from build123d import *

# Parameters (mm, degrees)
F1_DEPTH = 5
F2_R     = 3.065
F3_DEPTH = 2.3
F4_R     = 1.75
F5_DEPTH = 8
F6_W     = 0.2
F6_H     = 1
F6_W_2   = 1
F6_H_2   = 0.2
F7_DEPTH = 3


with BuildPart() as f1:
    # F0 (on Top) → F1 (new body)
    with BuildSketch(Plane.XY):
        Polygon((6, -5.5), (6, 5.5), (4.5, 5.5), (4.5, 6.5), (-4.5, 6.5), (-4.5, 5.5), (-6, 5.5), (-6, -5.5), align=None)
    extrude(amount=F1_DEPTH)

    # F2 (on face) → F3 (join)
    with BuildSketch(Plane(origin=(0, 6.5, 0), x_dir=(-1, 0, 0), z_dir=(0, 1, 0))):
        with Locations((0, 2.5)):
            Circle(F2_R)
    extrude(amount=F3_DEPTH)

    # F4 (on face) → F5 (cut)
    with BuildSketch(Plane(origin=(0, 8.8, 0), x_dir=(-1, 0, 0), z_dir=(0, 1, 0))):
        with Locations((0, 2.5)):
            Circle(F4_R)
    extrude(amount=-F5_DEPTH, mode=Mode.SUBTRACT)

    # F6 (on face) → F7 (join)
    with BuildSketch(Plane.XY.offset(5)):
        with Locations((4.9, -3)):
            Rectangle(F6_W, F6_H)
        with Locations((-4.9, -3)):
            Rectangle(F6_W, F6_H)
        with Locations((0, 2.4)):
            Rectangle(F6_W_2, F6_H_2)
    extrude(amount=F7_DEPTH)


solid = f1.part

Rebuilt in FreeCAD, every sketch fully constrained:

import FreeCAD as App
import Part
import Sketcher
Q = App.Units.Quantity


def add_polygon(sketch, points):
    """Adds a closed chain of lines whose ends are joined by coincident constraints."""
    first, n = sketch.GeometryCount, len(points)
    for a, b in zip(points, points[1:] + points[:1]):
        sketch.addGeometry(Part.LineSegment(App.Vector(*a, 0), App.Vector(*b, 0)), False)
    for i in range(n):
        sketch.addConstraint(Sketcher.Constraint("Coincident", first + i, 2, first + (i + 1) % n, 1))

doc = App.newDocument("Part")
params = doc.addObject("Spreadsheet::Sheet", "Params")
for row, (alias, value) in enumerate([
    ("sketch1_width", "9 mm"),
    ("sketch1_width2", "12 mm"),
    ("sketch1_height", "11 mm"),
    ("sketch1_height2", "1 mm"),
    ("pad1_length", "5 mm"),
    ("sketch2_diameter", "6.13 mm"),
    ("pad2_length", "2.3 mm"),
    ("sketch3_diameter", "3.5 mm"),
    ("pocket1_length", "8 mm"),
    ("sketch4_width", "1 mm"),
    ("sketch4_width2", "0.2 mm"),
    ("pad3_length", "3 mm"),
], start=1):
    params.set(f"A{row}", alias)
    params.set(f"B{row}", "=" + value)
    params.setAlias(f"B{row}", alias)

body = doc.addObject("PartDesign::Body", "Body")

# Sketch on XY plane
sketch1 = body.newObject("Sketcher::SketchObject", "Sketch")
sketch1.AttachmentSupport = (doc.getObject("XY_Plane"), [""])
sketch1.MapMode = "FlatFace"
add_polygon(sketch1, [(6, -5.5), (6, 5.5), (4.5, 5.5), (4.5, 6.5), (-4.5, 6.5), (-4.5, 5.5), (-6, 5.5), (-6, -5.5)])  # lines 0-7
sketch1.addConstraint(Sketcher.Constraint("Vertical", 0))
sketch1.addConstraint(Sketcher.Constraint("Horizontal", 1))
sketch1.addConstraint(Sketcher.Constraint("Vertical", 2))
sketch1.addConstraint(Sketcher.Constraint("Horizontal", 3))
sketch1.addConstraint(Sketcher.Constraint("Vertical", 4))
sketch1.addConstraint(Sketcher.Constraint("Horizontal", 5))
sketch1.addConstraint(Sketcher.Constraint("Vertical", 6))
sketch1.addConstraint(Sketcher.Constraint("Horizontal", 7))
sketch1.addConstraint(Sketcher.Constraint("Symmetric", 0, 2, 6, 2, -1, 1))
sketch1.addConstraint(Sketcher.Constraint("Symmetric", 1, 2, 4, 2, -2))
sketch1.addConstraint(Sketcher.Constraint("DistanceX", 3, 2, 3, 1, Q("9 mm")))
sketch1.addConstraint(Sketcher.Constraint("DistanceX", 7, 1, 7, 2, Q("12 mm")))
sketch1.addConstraint(Sketcher.Constraint("DistanceY", 0, 1, 0, 2, Q("11 mm")))
sketch1.addConstraint(Sketcher.Constraint("DistanceY", 2, 1, 2, 2, Q("1 mm")))
sketch1.setExpression("Constraints[18]", "Params.sketch1_width")
sketch1.setExpression("Constraints[19]", "Params.sketch1_width2")
sketch1.setExpression("Constraints[20]", "Params.sketch1_height")
sketch1.setExpression("Constraints[21]", "Params.sketch1_height2")
pad1 = body.newObject("PartDesign::Pad", "Pad")
pad1.Profile = sketch1
pad1.setExpression("Length", "Params.pad1_length")

# Sketch on XZ plane
sketch2 = body.newObject("Sketcher::SketchObject", "Sketch001")
sketch2.AttachmentSupport = (doc.getObject("XZ_Plane"), [""])
sketch2.MapMode = "FlatFace"
sketch2.AttachmentOffset = App.Placement(App.Vector(0, 0, -6.5), App.Rotation())
sketch2.addGeometry(Part.Circle(App.Vector(0, 2.5, 0), App.Vector(0, 0, 1), 3.1), False)
sketch2.addConstraint(Sketcher.Constraint("PointOnObject", 0, 3, -2))
sketch2.addConstraint(Sketcher.Constraint("Diameter", 0, Q("6.13 mm")))
sketch2.addConstraint(Sketcher.Constraint("DistanceY", -1, 1, 0, 3, Q("2.5 mm")))
sketch2.setExpression("Constraints[1]", "Params.sketch2_diameter")
pad2 = body.newObject("PartDesign::Pad", "Pad001")
pad2.Profile = sketch2
pad2.setExpression("Length", "Params.pad2_length")
pad2.Reversed = True

# Sketch on XZ plane
sketch3 = body.newObject("Sketcher::SketchObject", "Sketch002")
sketch3.AttachmentSupport = (doc.getObject("XZ_Plane"), [""])
sketch3.MapMode = "FlatFace"
sketch3.AttachmentOffset = App.Placement(App.Vector(0, 0, -8.8), App.Rotation())
sketch3.addGeometry(Part.Circle(App.Vector(0, 2.5, 0), App.Vector(0, 0, 1), 1.8), False)
sketch3.addConstraint(Sketcher.Constraint("PointOnObject", 0, 3, -2))
sketch3.addConstraint(Sketcher.Constraint("Diameter", 0, Q("3.5 mm")))
sketch3.addConstraint(Sketcher.Constraint("DistanceY", -1, 1, 0, 3, Q("2.5 mm")))
sketch3.setExpression("Constraints[1]", "Params.sketch3_diameter")
pocket1 = body.newObject("PartDesign::Pocket", "Pocket")
pocket1.Profile = sketch3
pocket1.setExpression("Length", "Params.pocket1_length")
pocket1.Reversed = True

# Sketch on XY plane
sketch4 = body.newObject("Sketcher::SketchObject", "Sketch003")
sketch4.AttachmentSupport = (doc.getObject("XY_Plane"), [""])
sketch4.MapMode = "FlatFace"
sketch4.AttachmentOffset = App.Placement(App.Vector(0, 0, 5), App.Rotation())
add_polygon(sketch4, [(4.8, -2.5), (4.8, -3.5), (5, -3.5), (5, -2.5)])  # lines 0-3
add_polygon(sketch4, [(-5, -2.5), (-5, -3.5), (-4.8, -3.5), (-4.8, -2.5)])  # lines 4-7
add_polygon(sketch4, [(-0.5, 2.5), (-0.5, 2.3), (0.5, 2.3), (0.5, 2.5)])  # lines 8-11
sketch4.addConstraint(Sketcher.Constraint("Vertical", 0))
sketch4.addConstraint(Sketcher.Constraint("Horizontal", 1))
sketch4.addConstraint(Sketcher.Constraint("Vertical", 2))
sketch4.addConstraint(Sketcher.Constraint("Horizontal", 3))
sketch4.addConstraint(Sketcher.Constraint("Vertical", 4))
sketch4.addConstraint(Sketcher.Constraint("Horizontal", 5))
sketch4.addConstraint(Sketcher.Constraint("Vertical", 6))
sketch4.addConstraint(Sketcher.Constraint("Horizontal", 7))
sketch4.addConstraint(Sketcher.Constraint("Vertical", 8))
sketch4.addConstraint(Sketcher.Constraint("Horizontal", 9))
sketch4.addConstraint(Sketcher.Constraint("Vertical", 10))
sketch4.addConstraint(Sketcher.Constraint("Horizontal", 11))
sketch4.addConstraint(Sketcher.Constraint("Symmetric", 1, 2, 4, 2, -2))
sketch4.addConstraint(Sketcher.Constraint("Symmetric", 3, 2, 6, 2, -2))
sketch4.addConstraint(Sketcher.Constraint("Equal", 11, 0))
sketch4.addConstraint(Sketcher.Constraint("Equal", 7, 8))
sketch4.addConstraint(Sketcher.Constraint("DistanceX", 9, 1, 9, 2, Q("1 mm")))
sketch4.addConstraint(Sketcher.Constraint("DistanceX", 1, 1, 1, 2, Q("0.2 mm")))
sketch4.addConstraint(Sketcher.Constraint("DistanceX", -1, 1, 1, 2, Q("5 mm")))
sketch4.addConstraint(Sketcher.Constraint("DistanceY", 3, 2, 10, 2, Q("5 mm")))
sketch4.addConstraint(Sketcher.Constraint("DistanceY", 0, 2, -1, 1, Q("3.5 mm")))
sketch4.addConstraint(Sketcher.Constraint("DistanceX", 8, 2, -1, 1, Q("0.5 mm")))
sketch4.setExpression("Constraints[28]", "Params.sketch4_width")
sketch4.setExpression("Constraints[29]", "Params.sketch4_width2")
pad3 = body.newObject("PartDesign::Pad", "Pad002")
pad3.Profile = sketch4
pad3.setExpression("Length", "Params.pad3_length")

doc.recompute()
